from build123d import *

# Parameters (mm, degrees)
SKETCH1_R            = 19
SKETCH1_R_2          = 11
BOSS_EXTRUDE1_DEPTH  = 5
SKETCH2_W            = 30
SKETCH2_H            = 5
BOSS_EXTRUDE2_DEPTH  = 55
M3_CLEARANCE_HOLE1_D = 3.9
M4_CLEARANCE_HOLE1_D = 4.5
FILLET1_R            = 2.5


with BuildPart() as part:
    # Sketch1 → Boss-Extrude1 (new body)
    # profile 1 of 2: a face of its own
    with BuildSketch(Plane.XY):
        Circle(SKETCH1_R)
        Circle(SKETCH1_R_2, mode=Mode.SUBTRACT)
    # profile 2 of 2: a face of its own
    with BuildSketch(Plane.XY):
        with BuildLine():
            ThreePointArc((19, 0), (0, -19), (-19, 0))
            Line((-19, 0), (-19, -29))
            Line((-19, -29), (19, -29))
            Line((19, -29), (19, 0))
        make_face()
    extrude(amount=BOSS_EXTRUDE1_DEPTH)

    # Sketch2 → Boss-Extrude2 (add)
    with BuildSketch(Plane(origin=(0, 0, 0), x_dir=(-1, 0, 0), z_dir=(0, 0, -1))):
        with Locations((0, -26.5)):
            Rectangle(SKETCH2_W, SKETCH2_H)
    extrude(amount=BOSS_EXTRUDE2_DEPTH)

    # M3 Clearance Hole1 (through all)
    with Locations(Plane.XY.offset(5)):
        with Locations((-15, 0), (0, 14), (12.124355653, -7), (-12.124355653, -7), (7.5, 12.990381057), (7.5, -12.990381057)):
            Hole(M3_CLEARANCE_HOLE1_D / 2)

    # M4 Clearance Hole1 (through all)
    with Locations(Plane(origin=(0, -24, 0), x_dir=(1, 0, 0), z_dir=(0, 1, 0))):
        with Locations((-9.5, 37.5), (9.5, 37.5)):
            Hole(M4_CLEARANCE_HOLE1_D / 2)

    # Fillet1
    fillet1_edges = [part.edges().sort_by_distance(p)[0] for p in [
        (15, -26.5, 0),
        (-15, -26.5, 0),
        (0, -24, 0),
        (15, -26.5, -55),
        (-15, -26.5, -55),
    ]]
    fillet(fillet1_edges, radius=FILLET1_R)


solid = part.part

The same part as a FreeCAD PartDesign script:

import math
import FreeCAD as App
import Part
import Sketcher
from FreeCAD import Vector


def edges_at(feature, points):
    """Names of the edges that pass closest to the given points."""
    edges = feature.Shape.Edges
    near = lambda p: min(range(len(edges)), key=lambda i: edges[i].distToShape(Part.Vertex(*p))[0])
    return sorted({f"Edge{near(p) + 1}" for p in points})

doc = App.newDocument("Part")
body = doc.addObject("PartDesign::Body", "Body")

sketch1 = body.newObject("Sketcher::SketchObject", "Sketch")
sketch1.AttachmentSupport = (doc.getObject("XY_Plane"), [""])
sketch1.MapMode = "FlatFace"
sketch1.addGeometry([
    Part.ArcOfCircle(Part.Circle(Vector(0, 0, 0), Vector(0, 0, 1), 19), math.radians(0), math.radians(180)),
    Part.LineSegment(Vector(-19, 0, 0), Vector(-19, -29, 0)),
    Part.LineSegment(Vector(-19, -29, 0), Vector(19, -29, 0)),
    Part.LineSegment(Vector(19, -29, 0), Vector(19, 0, 0)),
    Part.Circle(Vector(0, 0, 0), Vector(0, 0, 1), 11),
], False)
sketch1.addConstraint([
    Sketcher.Constraint("Tangent", 0, 2, 1, 1),
    Sketcher.Constraint("Coincident", 1, 2, 2, 1),
    Sketcher.Constraint("Coincident", 2, 2, 3, 1),
    Sketcher.Constraint("Tangent", 3, 2, 0, 1),
    Sketcher.Constraint("Vertical", 1),
    Sketcher.Constraint("Horizontal", 2),
    Sketcher.Constraint("Vertical", 3),
    Sketcher.Constraint("Coincident", 0, 3, -1, 1),
    Sketcher.Constraint("Coincident", 4, 3, -1, 1),
    Sketcher.Constraint("Diameter", 4, 22.0),
    Sketcher.Constraint("Radius", 0, 19.0),
    Sketcher.Constraint("DistanceY", 1, 2, 1, 1, 29.0),
])
pad1 = body.newObject("PartDesign::Pad", "Pad")
pad1.Profile = sketch1
pad1.Length = 5

sketch2 = body.newObject("Sketcher::SketchObject", "Sketch001")
sketch2.AttachmentSupport = (doc.getObject("XY_Plane"), [""])
sketch2.MapMode = "FlatFace"
sketch2.addGeometry([
    Part.LineSegment(Vector(15, -24, 0), Vector(15, -29, 0)),
    Part.LineSegment(Vector(15, -29, 0), Vector(-15, -29, 0)),
    Part.LineSegment(Vector(-15, -29, 0), Vector(-15, -24, 0)),
    Part.LineSegment(Vector(-15, -24, 0), Vector(15, -24, 0)),
], False)
sketch2.addConstraint([
    Sketcher.Constraint("Coincident", 0, 2, 1, 1),
    Sketcher.Constraint("Coincident", 1, 2, 2, 1),
    Sketcher.Constraint("Coincident", 2, 2, 3, 1),
    Sketcher.Constraint("Coincident", 3, 2, 0, 1),
    Sketcher.Constraint("Vertical", 0),
    Sketcher.Constraint("Horizontal", 1),
    Sketcher.Constraint("Vertical", 2),
    Sketcher.Constraint("Horizontal", 3),
    Sketcher.Constraint("DistanceX", 1, 2, 1, 1, 30.0),
    Sketcher.Constraint("DistanceY", 0, 2, 0, 1, 5.0),
    Sketcher.Constraint("DistanceX", -1, 1, 0, 2, 15.0),
    Sketcher.Constraint("DistanceY", 0, 2, -1, 1, 29.0),
])
pad2 = body.newObject("PartDesign::Pad", "Pad001")
pad2.Profile = sketch2
pad2.Length = 55
pad2.Reversed = True

sketch3 = body.newObject("Sketcher::SketchObject", "Sketch002")
sketch3.AttachmentSupport = (doc.getObject("XY_Plane"), [""])
sketch3.MapMode = "FlatFace"
sketch3.AttachmentOffset = App.Placement(Vector(0, 0, 5), App.Rotation())
sketch3.addGeometry([
    Part.Circle(Vector(-15, 0, 0), Vector(0, 0, 1), 1.9),
    Part.Circle(Vector(0, 14, 0), Vector(0, 0, 1), 1.9),
    Part.Circle(Vector(12.1, -7, 0), Vector(0, 0, 1), 1.9),
    Part.Circle(Vector(-12.1, -7, 0), Vector(0, 0, 1), 1.9),
    Part.Circle(Vector(7.5, 13, 0), Vector(0, 0, 1), 1.9),
    Part.Circle(Vector(7.5, -13, 0), Vector(0, 0, 1), 1.9),
], False)
sketch3.addConstraint([
    Sketcher.Constraint("Equal", 0, 1),
    Sketcher.Constraint("Equal", 1, 2),
    Sketcher.Constraint("Equal", 2, 3),
    Sketcher.Constraint("Equal", 3, 4),
    Sketcher.Constraint("Equal", 4, 5),
    Sketcher.Constraint("Symmetric", 2, 3, 3, 3, -2),
    Sketcher.Constraint("Symmetric", 4, 3, 5, 3, -1),
    Sketcher.Constraint("PointOnObject", 0, 3, -1),
    Sketcher.Constraint("PointOnObject", 1, 3, -2),
    Sketcher.Constraint("Diameter", 0, 3.9),
    Sketcher.Constraint("DistanceX", 0, 3, -1, 1, 15.0),
    Sketcher.Constraint("DistanceY", -1, 1, 1, 3, 14.0),
    Sketcher.Constraint("DistanceY", 2, 3, -1, 1, 7.0),
    Sketcher.Constraint("DistanceX", -1, 1, 4, 3, 7.5),
    Sketcher.Constraint("DistanceY", -1, 1, 4, 3, 12.990381),
    Sketcher.Constraint("DistanceX", 3, 3, 2, 3, 24.248711),
])
doc.recompute()
hole = body.newObject("PartDesign::Hole", "Hole")
hole.Profile = sketch3
hole.ThreadType = "None"
hole.Diameter = 3.9
hole.DepthType = "ThroughAll"

sketch4 = body.newObject("Sketcher::SketchObject", "Sketch003")
sketch4.AttachmentSupport = (doc.getObject("XZ_Plane"), [""])
sketch4.MapMode = "FlatFace"
sketch4.AttachmentOffset = App.Placement(Vector(0, 0, 24), App.Rotation())
sketch4.addGeometry([
    Part.Circle(Vector(-9.5, -37.5, 0), Vector(0, 0, 1), 2.2),
    Part.Circle(Vector(9.5, -37.5, 0), Vector(0, 0, 1), 2.2),
], False)
sketch4.addConstraint([
    Sketcher.Constraint("Equal", 0, 1),
    Sketcher.Constraint("Symmetric", 0, 3, 1, 3, -2),
    Sketcher.Constraint("Diameter", 0, 4.5),
    Sketcher.Constraint("DistanceX", 0, 3, 1, 3, 19.0),
    Sketcher.Constraint("DistanceY", 0, 3, -1, 1, 37.5),
])
doc.recompute()
hole2 = body.newObject("PartDesign::Hole", "Hole001")
hole2.Profile = sketch4
hole2.ThreadType = "None"
hole2.Diameter = 4.5
hole2.DepthType = "ThroughAll"
hole2.Reversed = True
doc.recompute()

fillet = body.newObject("PartDesign::Fillet", "Fillet")
fillet.Base = (hole2, edges_at(hole2, [
    (15, -26.5, 0),
    (-15, -26.5, 0),
    (0, -24, 0),
    (15, -26.5, -55),
    (-15, -26.5, -55),
]))
fillet.Radius = 2.5

doc.recompute()
